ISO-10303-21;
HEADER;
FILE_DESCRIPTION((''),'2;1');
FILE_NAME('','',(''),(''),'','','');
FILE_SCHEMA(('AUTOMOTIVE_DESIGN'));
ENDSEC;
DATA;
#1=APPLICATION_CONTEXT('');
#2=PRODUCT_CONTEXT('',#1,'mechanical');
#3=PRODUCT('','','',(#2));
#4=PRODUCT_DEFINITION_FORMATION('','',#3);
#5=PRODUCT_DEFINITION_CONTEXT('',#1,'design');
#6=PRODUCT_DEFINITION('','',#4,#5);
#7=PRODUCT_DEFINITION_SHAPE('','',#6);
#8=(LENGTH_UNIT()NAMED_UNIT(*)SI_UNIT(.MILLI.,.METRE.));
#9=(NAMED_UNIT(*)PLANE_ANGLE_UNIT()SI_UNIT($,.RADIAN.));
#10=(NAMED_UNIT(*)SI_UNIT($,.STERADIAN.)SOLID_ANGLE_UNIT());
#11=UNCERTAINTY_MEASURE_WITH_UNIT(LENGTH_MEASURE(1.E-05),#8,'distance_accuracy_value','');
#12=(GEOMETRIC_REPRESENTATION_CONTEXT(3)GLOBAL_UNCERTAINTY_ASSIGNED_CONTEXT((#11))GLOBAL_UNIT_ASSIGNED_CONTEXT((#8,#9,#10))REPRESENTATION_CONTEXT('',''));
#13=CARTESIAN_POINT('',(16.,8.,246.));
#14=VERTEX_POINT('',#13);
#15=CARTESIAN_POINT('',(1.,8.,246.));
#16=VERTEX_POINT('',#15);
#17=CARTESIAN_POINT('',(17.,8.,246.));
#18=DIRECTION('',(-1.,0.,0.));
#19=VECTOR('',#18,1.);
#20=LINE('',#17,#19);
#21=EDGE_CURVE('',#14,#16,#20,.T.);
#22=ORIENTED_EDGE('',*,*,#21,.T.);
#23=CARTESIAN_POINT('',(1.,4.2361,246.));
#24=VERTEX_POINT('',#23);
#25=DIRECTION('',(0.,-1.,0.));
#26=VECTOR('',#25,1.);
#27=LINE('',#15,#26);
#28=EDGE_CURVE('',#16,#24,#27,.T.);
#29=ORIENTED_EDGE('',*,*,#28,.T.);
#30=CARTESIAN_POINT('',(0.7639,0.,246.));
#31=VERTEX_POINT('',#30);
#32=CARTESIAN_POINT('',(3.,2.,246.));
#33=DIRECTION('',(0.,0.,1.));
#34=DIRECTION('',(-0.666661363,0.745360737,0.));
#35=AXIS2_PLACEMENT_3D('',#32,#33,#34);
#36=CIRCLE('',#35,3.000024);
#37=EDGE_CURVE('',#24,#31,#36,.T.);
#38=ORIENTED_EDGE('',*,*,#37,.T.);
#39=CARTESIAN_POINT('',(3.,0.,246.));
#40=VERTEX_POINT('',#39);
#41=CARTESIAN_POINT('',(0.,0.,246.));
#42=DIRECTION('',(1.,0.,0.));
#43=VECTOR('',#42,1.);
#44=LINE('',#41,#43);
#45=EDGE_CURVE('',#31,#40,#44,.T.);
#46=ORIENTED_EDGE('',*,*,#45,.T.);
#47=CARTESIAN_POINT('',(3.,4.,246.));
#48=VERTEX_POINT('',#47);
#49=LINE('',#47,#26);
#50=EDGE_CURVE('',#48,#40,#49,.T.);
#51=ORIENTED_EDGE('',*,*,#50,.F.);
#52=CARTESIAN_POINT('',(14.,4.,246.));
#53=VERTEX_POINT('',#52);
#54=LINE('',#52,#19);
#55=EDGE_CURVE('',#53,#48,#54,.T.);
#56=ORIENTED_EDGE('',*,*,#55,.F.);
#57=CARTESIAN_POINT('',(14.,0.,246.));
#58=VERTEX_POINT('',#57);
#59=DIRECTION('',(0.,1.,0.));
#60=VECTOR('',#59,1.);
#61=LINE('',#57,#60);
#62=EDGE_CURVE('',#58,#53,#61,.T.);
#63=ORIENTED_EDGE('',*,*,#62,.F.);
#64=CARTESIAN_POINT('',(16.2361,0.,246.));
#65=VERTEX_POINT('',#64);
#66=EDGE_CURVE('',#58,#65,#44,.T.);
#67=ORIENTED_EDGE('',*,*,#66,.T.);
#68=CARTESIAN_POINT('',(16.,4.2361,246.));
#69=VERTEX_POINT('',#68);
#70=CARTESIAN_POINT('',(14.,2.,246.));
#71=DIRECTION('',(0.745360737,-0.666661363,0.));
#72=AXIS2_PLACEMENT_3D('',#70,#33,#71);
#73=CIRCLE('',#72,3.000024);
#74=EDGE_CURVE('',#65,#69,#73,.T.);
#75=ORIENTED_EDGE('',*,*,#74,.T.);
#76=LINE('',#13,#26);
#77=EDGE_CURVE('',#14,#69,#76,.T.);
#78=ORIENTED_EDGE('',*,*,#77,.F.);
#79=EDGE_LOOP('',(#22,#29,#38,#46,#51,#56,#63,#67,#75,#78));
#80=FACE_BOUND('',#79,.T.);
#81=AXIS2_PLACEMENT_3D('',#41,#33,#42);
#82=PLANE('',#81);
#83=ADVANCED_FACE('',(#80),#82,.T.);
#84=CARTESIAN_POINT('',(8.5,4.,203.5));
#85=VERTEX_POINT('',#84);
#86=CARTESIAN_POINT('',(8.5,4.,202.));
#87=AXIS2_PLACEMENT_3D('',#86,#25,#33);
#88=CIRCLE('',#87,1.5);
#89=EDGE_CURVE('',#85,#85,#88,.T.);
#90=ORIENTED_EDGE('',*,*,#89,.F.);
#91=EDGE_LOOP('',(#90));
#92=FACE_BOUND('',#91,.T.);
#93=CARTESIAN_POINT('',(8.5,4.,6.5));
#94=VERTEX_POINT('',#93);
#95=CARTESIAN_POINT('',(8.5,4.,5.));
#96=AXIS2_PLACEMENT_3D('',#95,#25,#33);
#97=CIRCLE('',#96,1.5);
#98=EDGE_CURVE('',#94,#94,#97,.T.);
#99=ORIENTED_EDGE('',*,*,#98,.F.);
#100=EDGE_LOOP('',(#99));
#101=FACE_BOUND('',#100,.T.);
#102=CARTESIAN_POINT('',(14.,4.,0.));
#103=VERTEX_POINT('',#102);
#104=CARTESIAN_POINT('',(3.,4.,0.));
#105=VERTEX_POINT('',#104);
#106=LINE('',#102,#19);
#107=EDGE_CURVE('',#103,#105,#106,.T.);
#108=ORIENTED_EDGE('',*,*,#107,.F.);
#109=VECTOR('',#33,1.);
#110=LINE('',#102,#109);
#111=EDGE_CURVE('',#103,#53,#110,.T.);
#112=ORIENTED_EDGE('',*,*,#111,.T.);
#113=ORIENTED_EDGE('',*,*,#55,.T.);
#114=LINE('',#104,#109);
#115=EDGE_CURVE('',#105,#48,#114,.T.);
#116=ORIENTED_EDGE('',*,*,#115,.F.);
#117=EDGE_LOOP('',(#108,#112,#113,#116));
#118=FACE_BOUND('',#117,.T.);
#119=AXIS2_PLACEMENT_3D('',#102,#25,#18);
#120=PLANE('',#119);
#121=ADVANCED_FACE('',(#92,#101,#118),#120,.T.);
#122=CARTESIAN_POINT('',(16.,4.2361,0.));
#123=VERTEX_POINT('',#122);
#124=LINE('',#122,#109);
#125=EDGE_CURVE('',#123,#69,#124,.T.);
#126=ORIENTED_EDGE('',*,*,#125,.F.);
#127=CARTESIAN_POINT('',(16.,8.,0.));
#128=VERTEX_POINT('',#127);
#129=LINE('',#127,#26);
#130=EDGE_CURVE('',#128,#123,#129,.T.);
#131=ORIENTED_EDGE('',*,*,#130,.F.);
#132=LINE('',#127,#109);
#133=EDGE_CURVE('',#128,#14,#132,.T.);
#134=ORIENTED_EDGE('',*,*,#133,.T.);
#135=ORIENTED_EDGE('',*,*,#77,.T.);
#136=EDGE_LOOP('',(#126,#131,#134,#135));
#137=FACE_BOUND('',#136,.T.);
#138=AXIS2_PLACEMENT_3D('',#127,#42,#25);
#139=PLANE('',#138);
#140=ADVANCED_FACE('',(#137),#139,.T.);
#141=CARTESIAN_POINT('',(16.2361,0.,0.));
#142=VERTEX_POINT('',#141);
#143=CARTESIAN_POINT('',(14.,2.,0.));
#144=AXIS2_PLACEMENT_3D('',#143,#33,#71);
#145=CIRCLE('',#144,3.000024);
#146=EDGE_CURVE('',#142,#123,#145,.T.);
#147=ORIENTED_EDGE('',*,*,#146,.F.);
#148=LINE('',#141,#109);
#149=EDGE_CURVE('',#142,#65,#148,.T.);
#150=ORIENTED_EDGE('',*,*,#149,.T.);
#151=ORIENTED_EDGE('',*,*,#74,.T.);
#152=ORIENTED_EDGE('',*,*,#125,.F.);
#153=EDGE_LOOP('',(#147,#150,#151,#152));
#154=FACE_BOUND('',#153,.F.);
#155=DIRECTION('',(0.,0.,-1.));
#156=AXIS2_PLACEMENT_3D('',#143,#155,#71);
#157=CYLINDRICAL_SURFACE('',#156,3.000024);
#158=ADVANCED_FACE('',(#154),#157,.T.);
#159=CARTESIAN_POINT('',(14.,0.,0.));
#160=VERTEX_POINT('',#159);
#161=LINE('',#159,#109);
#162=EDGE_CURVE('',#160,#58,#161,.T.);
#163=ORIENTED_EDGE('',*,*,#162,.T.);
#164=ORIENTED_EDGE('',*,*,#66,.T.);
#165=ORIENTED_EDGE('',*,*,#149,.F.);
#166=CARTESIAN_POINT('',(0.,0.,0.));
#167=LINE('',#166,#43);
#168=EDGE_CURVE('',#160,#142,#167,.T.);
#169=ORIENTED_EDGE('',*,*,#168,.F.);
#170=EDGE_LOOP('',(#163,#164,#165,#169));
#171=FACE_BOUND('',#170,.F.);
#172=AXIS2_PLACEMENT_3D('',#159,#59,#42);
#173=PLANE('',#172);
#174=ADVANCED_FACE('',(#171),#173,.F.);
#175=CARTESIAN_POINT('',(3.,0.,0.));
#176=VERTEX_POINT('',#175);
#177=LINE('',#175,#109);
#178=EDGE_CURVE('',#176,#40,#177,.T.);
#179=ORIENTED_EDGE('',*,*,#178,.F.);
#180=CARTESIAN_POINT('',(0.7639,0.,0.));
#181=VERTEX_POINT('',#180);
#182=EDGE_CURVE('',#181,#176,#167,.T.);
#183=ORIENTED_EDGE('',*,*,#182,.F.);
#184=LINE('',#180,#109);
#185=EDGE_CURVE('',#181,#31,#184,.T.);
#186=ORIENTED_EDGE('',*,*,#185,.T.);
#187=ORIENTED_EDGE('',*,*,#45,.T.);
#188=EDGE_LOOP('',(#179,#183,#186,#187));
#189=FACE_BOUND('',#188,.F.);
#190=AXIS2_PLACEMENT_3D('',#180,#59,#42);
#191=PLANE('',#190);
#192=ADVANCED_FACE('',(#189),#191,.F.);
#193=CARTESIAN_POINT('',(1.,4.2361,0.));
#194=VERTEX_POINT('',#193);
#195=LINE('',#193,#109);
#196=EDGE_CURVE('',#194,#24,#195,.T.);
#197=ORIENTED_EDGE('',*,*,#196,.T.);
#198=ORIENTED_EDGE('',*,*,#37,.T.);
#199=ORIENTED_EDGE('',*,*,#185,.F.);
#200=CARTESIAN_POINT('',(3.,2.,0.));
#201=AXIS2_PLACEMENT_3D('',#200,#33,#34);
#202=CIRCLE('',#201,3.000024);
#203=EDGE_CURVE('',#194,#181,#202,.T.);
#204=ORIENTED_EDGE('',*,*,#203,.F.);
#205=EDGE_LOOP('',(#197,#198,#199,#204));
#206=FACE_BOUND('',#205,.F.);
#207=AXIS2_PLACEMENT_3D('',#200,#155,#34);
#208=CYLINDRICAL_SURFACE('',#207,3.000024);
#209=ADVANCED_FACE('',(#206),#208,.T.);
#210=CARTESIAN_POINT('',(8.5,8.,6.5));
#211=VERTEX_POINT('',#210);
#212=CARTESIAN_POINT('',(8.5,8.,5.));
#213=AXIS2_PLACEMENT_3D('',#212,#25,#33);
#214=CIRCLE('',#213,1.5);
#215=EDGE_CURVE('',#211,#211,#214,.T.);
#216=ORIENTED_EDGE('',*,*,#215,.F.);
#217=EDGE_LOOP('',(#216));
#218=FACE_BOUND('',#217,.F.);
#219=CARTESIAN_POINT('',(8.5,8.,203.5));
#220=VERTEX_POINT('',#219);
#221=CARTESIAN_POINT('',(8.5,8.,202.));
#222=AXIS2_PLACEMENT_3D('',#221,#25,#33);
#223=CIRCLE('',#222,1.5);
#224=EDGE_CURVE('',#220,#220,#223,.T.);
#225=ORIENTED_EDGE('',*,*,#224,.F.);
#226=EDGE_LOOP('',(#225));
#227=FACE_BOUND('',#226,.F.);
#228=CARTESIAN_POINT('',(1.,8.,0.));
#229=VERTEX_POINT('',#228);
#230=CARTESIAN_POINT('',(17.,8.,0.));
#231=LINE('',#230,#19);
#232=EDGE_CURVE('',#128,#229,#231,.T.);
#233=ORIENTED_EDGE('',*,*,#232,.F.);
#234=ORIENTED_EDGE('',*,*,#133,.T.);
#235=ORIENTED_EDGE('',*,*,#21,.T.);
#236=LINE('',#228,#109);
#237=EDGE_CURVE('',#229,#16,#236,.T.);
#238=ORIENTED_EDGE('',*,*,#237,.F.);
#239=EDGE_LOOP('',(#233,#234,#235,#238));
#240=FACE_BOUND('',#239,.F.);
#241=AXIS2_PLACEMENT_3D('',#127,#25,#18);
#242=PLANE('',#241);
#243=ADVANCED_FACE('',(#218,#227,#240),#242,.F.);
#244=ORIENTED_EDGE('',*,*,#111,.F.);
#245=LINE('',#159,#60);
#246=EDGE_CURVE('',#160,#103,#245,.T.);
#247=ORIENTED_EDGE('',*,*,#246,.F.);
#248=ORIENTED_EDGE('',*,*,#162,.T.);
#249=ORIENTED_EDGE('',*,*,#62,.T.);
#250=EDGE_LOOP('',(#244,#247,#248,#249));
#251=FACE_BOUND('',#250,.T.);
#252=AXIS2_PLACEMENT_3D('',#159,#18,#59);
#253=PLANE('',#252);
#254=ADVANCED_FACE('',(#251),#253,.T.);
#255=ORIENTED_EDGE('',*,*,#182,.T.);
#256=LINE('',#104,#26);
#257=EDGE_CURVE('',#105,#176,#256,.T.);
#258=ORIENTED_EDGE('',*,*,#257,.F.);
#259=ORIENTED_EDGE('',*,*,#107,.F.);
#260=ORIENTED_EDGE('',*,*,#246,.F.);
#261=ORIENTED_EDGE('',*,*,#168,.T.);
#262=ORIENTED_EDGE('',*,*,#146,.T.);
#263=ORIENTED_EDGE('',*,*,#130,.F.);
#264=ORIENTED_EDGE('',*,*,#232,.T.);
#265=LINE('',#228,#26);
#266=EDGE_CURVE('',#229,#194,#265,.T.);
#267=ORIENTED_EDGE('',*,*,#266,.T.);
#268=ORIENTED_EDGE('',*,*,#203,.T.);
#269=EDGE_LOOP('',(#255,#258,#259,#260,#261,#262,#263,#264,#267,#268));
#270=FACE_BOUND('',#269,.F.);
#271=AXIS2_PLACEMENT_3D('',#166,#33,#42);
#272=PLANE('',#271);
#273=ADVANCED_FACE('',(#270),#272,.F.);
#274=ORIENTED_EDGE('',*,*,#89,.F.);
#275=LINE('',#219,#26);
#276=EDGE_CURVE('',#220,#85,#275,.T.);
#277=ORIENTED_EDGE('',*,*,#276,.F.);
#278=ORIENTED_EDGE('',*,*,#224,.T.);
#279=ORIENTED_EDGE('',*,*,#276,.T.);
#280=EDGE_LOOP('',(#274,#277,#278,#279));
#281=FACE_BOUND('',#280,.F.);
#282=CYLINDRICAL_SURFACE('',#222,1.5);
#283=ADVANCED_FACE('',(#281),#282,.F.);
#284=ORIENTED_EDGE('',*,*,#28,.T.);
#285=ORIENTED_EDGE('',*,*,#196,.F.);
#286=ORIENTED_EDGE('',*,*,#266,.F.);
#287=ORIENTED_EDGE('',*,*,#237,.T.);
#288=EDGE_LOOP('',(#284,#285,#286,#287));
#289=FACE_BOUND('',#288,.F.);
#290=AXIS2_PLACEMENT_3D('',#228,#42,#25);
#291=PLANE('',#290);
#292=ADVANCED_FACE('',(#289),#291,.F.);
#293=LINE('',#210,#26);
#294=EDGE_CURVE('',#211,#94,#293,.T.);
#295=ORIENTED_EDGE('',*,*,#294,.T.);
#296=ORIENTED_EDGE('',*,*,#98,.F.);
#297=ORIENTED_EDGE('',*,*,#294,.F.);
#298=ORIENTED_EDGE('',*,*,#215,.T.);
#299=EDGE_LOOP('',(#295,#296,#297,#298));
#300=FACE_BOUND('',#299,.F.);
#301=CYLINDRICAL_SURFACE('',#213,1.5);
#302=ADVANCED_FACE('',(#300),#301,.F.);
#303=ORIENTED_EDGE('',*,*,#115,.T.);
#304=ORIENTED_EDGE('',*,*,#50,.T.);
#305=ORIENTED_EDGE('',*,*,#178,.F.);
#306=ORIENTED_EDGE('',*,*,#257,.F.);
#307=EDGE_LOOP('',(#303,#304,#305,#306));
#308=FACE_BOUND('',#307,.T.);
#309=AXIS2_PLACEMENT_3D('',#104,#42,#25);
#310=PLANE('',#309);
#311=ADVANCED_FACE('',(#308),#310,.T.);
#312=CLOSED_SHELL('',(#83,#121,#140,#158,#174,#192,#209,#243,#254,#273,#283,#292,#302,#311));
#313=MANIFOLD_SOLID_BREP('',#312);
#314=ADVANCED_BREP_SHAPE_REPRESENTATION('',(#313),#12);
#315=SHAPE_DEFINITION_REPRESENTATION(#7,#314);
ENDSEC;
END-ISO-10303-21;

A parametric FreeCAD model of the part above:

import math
import FreeCAD as App
import Part
import Sketcher

V = App.Vector

doc = App.newDocument("Part")
body = doc.addObject("PartDesign::Body", "Body")

sketch1 = body.newObject("Sketcher::SketchObject", "Sketch")
sketch1.AttachmentSupport = (doc.getObject("XY_Plane"), [""])
sketch1.MapMode = "FlatFace"
sketch1.addGeometry(Part.ArcOfCircle(Part.Circle(V(3, 2, 0), V(0, 0, 1), 3), math.radians(132), math.radians(222)), False)
sketch1.addGeometry(Part.LineSegment(V(0.8, 0, 0), V(3, 0, 0)), False)
sketch1.addGeometry(Part.LineSegment(V(3, 0, 0), V(3, 4, 0)), False)
sketch1.addGeometry(Part.LineSegment(V(3, 4, 0), V(14, 4, 0)), False)
sketch1.addGeometry(Part.LineSegment(V(14, 4, 0), V(14, 0, 0)), False)
sketch1.addGeometry(Part.LineSegment(V(14, 0, 0), V(16.2, 0, 0)), False)
sketch1.addGeometry(Part.ArcOfCircle(Part.Circle(V(14, 2, 0), V(0, 0, 1), 3), math.radians(-42), math.radians(48)), False)
sketch1.addGeometry(Part.LineSegment(V(16, 4.2, 0), V(16, 8, 0)), False)
sketch1.addGeometry(Part.LineSegment(V(16, 8, 0), V(1, 8, 0)), False)
sketch1.addGeometry(Part.LineSegment(V(1, 8, 0), V(1, 4.2, 0)), False)
sketch1.addConstraint(Sketcher.Constraint("Coincident", 0, 2, 1, 1))
sketch1.addConstraint(Sketcher.Constraint("Coincident", 1, 2, 2, 1))
sketch1.addConstraint(Sketcher.Constraint("Coincident", 2, 2, 3, 1))
sketch1.addConstraint(Sketcher.Constraint("Coincident", 3, 2, 4, 1))
sketch1.addConstraint(Sketcher.Constraint("Coincident", 4, 2, 5, 1))
sketch1.addConstraint(Sketcher.Constraint("Coincident", 5, 2, 6, 1))
sketch1.addConstraint(Sketcher.Constraint("Coincident", 6, 2, 7, 1))
sketch1.addConstraint(Sketcher.Constraint("Coincident", 7, 2, 8, 1))
sketch1.addConstraint(Sketcher.Constraint("Coincident", 8, 2, 9, 1))
sketch1.addConstraint(Sketcher.Constraint("Coincident", 9, 2, 0, 1))
sketch1.addConstraint(Sketcher.Constraint("Horizontal", 1))
sketch1.addConstraint(Sketcher.Constraint("Vertical", 2))
sketch1.addConstraint(Sketcher.Constraint("Horizontal", 3))
sketch1.addConstraint(Sketcher.Constraint("Vertical", 4))
sketch1.addConstraint(Sketcher.Constraint("Horizontal", 5))
sketch1.addConstraint(Sketcher.Constraint("Vertical", 7))
sketch1.addConstraint(Sketcher.Constraint("Horizontal", 8))
sketch1.addConstraint(Sketcher.Constraint("Vertical", 9))
sketch1.addConstraint(Sketcher.Constraint("Equal", 0, 6))
sketch1.addConstraint(Sketcher.Constraint("PointOnObject", 0, 2, -1))
sketch1.addConstraint(Sketcher.Constraint("PointOnObject", 4, 2, -1))
sketch1.addConstraint(Sketcher.Constraint("Horizontal", 0, 3, 6, 3))
sketch1.addConstraint(Sketcher.Constraint("Horizontal", 6, 2, 9, 2))
sketch1.addConstraint(Sketcher.Constraint("Vertical", 0, 3, 1, 2))
sketch1.addConstraint(Sketcher.Constraint("Vertical", 6, 3, 3, 2))
sketch1.addConstraint(Sketcher.Constraint("DistanceX", 3, 1, 3, 2, 11.0))
sketch1.addConstraint(Sketcher.Constraint("DistanceX", 8, 2, 8, 1, 15.0))
sketch1.addConstraint(Sketcher.Constraint("DistanceY", 2, 1, 2, 2, 4.0))
sketch1.addConstraint(Sketcher.Constraint("DistanceY", -1, 1, 7, 2, 8.0))
sketch1.addConstraint(Sketcher.Constraint("Radius", 0, 3.0))
sketch1.addConstraint(Sketcher.Constraint("DistanceX", -1, 1, 0, 3, 3.0))
sketch1.addConstraint(Sketcher.Constraint("DistanceY", -1, 1, 0, 3, 2.0))
pad1 = body.newObject("PartDesign::Pad", "Pad")
pad1.Profile = sketch1
pad1.Length = 246

sketch2 = body.newObject("Sketcher::SketchObject", "Sketch001")
sketch2.AttachmentSupport = (doc.getObject("XZ_Plane"), [""])
sketch2.MapMode = "FlatFace"
sketch2.AttachmentOffset = App.Placement(V(0, 0, -8), App.Rotation())
sketch2.addGeometry(Part.Circle(V(8.5, 5, 0), V(0, 0, 1), 1.5), False)
sketch2.addGeometry(Part.Circle(V(8.5, 202, 0), V(0, 0, 1), 1.5), False)
sketch2.addConstraint(Sketcher.Constraint("Equal", 0, 1))
sketch2.addConstraint(Sketcher.Constraint("Vertical", 0, 3, 1, 3))
sketch2.addConstraint(Sketcher.Constraint("Diameter", 0, 3.0))
sketch2.addConstraint(Sketcher.Constraint("DistanceY", -1, 1, 0, 3, 5.0))
sketch2.addConstraint(Sketcher.Constraint("DistanceY", -1, 1, 1, 3, 202.0))
sketch2.addConstraint(Sketcher.Constraint("DistanceX", -1, 1, 0, 3, 8.5))
doc.recompute()
hole = body.newObject("PartDesign::Hole", "Hole")
hole.Profile = sketch2
hole.ThreadType = "None"
hole.Diameter = 3
hole.DepthType = "Dimension"
hole.Depth = 8
hole.DrillPoint = "Angled"
hole.DrillPointAngle = 118
hole.Reversed = True

doc.recompute()
